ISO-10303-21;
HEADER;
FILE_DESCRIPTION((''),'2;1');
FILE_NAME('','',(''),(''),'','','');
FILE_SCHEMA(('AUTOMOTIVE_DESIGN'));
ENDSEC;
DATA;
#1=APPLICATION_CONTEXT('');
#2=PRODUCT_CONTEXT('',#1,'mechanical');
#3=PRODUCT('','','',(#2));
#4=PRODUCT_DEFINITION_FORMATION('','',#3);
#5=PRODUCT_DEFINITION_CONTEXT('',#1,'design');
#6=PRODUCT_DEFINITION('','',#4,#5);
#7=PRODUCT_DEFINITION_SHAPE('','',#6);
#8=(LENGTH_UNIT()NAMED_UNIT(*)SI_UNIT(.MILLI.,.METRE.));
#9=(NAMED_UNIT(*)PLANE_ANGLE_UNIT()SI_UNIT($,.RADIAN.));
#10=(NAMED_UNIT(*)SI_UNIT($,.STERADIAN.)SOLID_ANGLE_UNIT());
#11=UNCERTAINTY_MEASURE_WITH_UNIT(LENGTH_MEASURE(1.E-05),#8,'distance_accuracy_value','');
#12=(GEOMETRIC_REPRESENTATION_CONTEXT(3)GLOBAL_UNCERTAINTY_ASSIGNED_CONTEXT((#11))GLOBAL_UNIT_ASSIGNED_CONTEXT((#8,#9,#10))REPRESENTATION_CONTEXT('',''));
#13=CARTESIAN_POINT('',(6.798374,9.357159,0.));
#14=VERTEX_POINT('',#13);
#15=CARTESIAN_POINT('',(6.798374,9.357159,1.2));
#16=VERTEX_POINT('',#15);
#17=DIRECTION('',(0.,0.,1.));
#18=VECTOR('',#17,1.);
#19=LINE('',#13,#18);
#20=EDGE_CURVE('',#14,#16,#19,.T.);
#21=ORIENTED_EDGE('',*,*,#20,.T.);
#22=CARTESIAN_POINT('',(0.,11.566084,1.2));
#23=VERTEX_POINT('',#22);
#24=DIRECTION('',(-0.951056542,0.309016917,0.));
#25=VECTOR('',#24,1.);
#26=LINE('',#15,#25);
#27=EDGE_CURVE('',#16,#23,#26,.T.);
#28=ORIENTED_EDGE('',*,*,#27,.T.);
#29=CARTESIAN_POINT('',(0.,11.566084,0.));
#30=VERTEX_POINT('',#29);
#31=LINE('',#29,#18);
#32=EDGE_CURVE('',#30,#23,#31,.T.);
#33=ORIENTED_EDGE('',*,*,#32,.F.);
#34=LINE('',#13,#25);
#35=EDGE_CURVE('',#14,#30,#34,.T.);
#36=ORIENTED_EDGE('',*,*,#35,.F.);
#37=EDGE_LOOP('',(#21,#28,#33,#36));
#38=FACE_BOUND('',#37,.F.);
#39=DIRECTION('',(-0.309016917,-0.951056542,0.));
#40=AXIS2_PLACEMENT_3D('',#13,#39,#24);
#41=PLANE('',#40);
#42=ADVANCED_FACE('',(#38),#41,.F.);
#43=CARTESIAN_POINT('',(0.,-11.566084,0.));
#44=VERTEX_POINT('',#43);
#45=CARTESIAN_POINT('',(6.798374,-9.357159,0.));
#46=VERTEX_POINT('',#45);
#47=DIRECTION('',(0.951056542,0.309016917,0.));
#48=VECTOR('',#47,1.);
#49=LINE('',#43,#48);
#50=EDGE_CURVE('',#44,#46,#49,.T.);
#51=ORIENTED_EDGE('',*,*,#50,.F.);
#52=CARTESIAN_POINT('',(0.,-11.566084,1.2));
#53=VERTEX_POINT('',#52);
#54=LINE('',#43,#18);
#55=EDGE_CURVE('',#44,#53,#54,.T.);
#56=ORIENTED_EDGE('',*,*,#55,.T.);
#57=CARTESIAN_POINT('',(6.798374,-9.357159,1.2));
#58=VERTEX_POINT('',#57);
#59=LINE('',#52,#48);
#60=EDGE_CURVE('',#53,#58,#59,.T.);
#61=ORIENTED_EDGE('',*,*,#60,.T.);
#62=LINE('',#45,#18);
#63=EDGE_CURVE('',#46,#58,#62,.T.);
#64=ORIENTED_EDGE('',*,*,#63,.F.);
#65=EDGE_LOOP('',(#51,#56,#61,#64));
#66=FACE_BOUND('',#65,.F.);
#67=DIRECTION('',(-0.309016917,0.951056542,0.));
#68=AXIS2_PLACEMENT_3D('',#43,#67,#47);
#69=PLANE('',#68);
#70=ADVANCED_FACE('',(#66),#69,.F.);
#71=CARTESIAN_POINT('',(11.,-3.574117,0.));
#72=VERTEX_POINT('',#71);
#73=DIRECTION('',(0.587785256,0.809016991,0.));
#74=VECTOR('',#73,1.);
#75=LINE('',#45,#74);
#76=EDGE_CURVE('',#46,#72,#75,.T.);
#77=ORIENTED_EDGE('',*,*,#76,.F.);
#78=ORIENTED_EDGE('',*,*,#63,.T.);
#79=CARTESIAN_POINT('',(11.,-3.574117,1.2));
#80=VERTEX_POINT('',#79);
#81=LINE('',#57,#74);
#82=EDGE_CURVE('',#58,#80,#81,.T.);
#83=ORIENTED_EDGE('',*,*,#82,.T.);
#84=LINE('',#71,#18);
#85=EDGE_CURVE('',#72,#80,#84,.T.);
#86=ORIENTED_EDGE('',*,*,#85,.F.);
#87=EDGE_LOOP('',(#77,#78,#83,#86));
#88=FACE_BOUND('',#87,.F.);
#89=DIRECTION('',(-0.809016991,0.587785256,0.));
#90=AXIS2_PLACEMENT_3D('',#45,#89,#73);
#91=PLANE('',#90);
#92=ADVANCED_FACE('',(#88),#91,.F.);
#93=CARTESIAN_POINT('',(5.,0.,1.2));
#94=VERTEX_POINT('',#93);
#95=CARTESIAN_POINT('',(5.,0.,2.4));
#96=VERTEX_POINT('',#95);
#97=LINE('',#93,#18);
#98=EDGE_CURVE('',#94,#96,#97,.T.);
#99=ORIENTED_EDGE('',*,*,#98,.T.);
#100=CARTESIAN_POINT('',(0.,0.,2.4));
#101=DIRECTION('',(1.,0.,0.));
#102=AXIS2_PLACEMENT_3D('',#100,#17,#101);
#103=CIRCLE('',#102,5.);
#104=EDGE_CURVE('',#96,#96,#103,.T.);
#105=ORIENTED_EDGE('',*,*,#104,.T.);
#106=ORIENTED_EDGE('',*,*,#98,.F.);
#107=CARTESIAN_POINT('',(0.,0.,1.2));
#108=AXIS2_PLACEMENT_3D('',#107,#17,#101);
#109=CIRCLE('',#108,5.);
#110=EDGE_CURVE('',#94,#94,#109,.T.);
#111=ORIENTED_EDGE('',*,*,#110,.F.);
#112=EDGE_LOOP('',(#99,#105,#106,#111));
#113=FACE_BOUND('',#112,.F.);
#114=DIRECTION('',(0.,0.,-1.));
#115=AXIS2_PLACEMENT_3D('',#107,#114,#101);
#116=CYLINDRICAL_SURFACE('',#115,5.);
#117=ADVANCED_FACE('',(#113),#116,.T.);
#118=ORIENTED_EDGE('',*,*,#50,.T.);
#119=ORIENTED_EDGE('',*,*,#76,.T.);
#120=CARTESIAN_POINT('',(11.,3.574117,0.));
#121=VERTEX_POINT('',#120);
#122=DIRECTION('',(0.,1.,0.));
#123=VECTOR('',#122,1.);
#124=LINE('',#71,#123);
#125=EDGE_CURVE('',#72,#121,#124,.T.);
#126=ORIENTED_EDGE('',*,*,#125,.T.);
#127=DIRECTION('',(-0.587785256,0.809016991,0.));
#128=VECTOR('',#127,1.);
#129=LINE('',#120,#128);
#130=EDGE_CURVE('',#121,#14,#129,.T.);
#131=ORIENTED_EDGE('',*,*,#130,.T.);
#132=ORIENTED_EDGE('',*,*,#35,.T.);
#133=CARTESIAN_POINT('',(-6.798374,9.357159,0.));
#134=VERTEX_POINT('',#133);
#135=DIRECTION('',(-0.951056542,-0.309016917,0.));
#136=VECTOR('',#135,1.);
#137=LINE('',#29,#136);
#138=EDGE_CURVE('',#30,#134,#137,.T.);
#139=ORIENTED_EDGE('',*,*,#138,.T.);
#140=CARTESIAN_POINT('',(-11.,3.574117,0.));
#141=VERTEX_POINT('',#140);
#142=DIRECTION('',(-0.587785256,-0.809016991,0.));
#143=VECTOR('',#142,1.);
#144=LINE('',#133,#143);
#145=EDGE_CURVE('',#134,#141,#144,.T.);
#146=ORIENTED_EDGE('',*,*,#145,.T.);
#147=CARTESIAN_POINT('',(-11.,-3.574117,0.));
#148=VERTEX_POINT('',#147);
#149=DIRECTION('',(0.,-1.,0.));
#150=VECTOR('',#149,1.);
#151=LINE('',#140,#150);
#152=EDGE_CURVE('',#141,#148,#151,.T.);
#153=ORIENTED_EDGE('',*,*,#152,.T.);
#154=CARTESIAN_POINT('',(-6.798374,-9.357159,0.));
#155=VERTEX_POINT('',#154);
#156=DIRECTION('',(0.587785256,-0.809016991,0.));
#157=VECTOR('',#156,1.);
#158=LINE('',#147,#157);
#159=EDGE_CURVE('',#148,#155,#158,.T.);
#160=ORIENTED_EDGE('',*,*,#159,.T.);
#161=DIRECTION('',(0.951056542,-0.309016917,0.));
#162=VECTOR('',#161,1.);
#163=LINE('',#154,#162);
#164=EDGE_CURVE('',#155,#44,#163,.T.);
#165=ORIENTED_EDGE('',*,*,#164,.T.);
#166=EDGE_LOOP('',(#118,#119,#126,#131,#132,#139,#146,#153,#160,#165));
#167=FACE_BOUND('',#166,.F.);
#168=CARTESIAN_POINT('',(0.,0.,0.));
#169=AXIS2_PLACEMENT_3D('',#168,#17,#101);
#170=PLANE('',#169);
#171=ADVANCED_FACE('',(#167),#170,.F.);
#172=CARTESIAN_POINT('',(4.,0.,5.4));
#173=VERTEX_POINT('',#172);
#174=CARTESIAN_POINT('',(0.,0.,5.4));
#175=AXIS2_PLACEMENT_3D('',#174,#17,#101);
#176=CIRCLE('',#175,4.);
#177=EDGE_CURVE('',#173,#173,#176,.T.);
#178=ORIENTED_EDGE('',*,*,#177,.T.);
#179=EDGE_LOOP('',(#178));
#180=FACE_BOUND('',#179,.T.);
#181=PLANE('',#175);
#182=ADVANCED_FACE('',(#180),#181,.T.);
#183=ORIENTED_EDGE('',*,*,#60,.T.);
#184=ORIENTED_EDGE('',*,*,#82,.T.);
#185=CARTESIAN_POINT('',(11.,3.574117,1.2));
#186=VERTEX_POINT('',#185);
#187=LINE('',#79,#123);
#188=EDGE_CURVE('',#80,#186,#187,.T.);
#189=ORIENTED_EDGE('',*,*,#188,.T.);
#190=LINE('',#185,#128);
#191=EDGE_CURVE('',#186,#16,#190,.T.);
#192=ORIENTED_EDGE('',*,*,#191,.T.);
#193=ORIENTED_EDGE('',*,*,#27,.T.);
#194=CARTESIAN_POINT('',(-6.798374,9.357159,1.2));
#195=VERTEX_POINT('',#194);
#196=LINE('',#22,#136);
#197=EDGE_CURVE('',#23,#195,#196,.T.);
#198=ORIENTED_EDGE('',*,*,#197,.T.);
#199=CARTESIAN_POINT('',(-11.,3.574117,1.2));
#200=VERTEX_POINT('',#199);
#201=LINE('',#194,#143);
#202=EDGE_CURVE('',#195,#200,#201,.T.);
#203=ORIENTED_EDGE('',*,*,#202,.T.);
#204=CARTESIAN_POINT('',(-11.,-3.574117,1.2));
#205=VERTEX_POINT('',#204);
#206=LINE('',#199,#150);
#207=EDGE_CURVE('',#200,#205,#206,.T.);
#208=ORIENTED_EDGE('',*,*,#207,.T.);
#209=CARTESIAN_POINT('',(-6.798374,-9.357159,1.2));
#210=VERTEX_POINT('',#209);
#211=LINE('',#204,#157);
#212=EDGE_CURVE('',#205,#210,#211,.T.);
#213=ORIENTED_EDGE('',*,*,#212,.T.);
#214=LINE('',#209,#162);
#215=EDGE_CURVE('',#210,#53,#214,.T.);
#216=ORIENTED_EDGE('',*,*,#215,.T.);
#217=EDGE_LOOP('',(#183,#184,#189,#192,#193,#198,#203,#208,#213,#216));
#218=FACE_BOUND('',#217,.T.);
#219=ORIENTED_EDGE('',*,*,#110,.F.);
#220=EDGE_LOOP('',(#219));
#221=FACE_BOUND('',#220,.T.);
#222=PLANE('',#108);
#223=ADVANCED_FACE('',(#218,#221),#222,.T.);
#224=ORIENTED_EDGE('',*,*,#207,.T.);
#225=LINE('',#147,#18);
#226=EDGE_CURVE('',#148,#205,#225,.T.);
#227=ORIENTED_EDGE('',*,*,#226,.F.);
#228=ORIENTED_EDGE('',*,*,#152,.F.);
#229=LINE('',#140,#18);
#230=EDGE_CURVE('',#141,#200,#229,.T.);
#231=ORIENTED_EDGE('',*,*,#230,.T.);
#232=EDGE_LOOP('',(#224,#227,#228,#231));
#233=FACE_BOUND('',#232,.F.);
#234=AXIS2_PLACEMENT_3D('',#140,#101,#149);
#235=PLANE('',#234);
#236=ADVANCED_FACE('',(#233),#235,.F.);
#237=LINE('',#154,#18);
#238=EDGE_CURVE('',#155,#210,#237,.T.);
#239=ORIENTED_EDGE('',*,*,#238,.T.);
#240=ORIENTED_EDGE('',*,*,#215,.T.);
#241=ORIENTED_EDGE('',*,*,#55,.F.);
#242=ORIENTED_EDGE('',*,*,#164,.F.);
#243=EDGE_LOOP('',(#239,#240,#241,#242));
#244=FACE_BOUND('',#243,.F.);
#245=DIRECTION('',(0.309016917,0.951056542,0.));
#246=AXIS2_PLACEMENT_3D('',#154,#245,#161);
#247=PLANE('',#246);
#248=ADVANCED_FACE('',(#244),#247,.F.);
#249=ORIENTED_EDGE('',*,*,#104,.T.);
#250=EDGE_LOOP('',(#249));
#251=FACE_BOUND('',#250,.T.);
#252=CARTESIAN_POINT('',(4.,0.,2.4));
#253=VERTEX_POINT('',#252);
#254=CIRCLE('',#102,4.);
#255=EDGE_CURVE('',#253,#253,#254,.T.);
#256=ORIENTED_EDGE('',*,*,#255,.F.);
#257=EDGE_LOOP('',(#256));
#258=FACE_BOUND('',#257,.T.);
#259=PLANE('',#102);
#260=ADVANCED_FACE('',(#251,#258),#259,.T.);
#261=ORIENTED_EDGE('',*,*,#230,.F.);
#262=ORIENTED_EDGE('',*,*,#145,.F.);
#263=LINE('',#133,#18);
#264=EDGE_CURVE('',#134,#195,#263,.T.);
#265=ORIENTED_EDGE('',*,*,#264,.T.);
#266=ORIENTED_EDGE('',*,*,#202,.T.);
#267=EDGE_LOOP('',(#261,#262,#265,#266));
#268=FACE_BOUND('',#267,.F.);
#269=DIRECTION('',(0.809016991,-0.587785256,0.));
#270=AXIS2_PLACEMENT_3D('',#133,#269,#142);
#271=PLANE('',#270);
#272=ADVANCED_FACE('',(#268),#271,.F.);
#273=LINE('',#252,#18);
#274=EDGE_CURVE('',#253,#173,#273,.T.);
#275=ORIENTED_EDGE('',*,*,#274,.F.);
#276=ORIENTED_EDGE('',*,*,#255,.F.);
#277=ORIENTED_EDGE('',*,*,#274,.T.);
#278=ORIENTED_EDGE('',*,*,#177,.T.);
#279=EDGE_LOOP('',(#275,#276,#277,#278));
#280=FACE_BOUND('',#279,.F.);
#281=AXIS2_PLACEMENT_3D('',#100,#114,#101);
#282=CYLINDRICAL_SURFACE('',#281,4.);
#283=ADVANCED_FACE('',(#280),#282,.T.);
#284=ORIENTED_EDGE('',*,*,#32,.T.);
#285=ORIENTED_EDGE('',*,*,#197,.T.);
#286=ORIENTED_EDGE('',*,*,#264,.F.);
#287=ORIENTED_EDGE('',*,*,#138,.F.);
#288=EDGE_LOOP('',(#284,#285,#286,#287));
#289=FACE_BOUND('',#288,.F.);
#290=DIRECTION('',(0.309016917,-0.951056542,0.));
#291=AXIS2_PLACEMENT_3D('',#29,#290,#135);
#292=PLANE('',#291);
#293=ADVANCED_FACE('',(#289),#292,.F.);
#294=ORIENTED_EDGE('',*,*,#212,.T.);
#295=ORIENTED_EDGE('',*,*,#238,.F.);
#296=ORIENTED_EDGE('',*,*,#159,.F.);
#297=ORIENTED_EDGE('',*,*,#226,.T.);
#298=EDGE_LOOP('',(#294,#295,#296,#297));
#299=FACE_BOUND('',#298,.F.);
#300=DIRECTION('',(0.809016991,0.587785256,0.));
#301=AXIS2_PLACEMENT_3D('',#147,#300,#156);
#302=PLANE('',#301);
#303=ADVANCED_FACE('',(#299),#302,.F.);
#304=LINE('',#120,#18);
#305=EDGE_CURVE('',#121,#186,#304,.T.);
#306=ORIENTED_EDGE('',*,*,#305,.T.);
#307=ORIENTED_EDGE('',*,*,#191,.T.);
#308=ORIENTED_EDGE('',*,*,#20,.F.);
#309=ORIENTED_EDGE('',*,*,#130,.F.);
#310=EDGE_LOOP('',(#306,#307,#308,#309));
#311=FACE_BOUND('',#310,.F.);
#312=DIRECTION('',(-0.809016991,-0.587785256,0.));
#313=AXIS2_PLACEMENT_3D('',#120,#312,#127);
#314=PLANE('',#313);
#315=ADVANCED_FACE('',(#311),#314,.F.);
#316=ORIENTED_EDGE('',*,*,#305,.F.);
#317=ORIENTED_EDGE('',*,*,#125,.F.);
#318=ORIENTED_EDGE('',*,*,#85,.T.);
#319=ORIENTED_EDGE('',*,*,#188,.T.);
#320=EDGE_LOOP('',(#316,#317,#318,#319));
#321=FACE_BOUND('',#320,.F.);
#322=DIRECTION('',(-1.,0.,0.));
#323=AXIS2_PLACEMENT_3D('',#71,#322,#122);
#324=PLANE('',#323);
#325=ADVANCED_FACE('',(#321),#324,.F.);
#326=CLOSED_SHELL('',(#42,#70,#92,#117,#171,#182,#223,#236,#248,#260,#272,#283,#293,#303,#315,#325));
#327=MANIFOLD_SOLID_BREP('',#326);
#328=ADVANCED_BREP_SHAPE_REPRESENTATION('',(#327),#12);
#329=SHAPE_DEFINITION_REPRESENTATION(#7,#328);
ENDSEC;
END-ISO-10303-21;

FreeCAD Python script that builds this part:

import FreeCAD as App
import Part
import Sketcher

V = App.Vector
Q = App.Units.Quantity

doc = App.newDocument("Part")
body = doc.addObject("PartDesign::Body", "Body")

# Sketch on XY plane
sketch1 = body.newObject("Sketcher::SketchObject", "Sketch")
sketch1.AttachmentSupport = (doc.getObject("XY_Plane"), [""])
sketch1.MapMode = "FlatFace"
sketch1.addGeometry([
    Part.LineSegment(V(-11, 4, 0), V(-11, -4, 0)),  # 0
    Part.LineSegment(V(-11, -4, 0), V(-7, -9, 0)),  # 1
    Part.LineSegment(V(-7, -9, 0), V(0, -12, 0)),  # 2
    Part.LineSegment(V(0, -12, 0), V(7, -9, 0)),  # 3
    Part.LineSegment(V(7, -9, 0), V(11, -4, 0)),  # 4
    Part.LineSegment(V(11, -4, 0), V(11, 4, 0)),  # 5
    Part.LineSegment(V(11, 4, 0), V(7, 9, 0)),  # 6
    Part.LineSegment(V(7, 9, 0), V(0, 12, 0)),  # 7
    Part.LineSegment(V(0, 12, 0), V(-7, 9, 0)),  # 8
    Part.LineSegment(V(-7, 9, 0), V(-11, 4, 0)),  # 9
], False)
sketch1.addConstraint([
    Sketcher.Constraint("Coincident", 0, 2, 1, 1),
    Sketcher.Constraint("Coincident", 1, 2, 2, 1),
    Sketcher.Constraint("Coincident", 2, 2, 3, 1),
    Sketcher.Constraint("Coincident", 3, 2, 4, 1),
    Sketcher.Constraint("Coincident", 4, 2, 5, 1),
    Sketcher.Constraint("Coincident", 5, 2, 6, 1),
    Sketcher.Constraint("Coincident", 6, 2, 7, 1),
    Sketcher.Constraint("Coincident", 7, 2, 8, 1),
    Sketcher.Constraint("Coincident", 8, 2, 9, 1),
    Sketcher.Constraint("Coincident", 9, 2, 0, 1),
    Sketcher.Constraint("Vertical", 0),
    Sketcher.Constraint("Vertical", 5),
    Sketcher.Constraint("Symmetric", 0, 2, 5, 2, -1, 1),
    Sketcher.Constraint("Symmetric", 1, 2, 6, 2, -1, 1),
    Sketcher.Constraint("Symmetric", 2, 2, 7, 2, -1, 1),
    Sketcher.Constraint("Symmetric", 3, 2, 8, 2, -1, 1),
    Sketcher.Constraint("Symmetric", 1, 2, 3, 2, -2),
    Sketcher.Constraint("PointOnObject", 2, 2, -2),
    Sketcher.Constraint("Parallel", 4, 9),
    Sketcher.Constraint("Horizontal", 0, 2, 4, 2),
    Sketcher.Constraint("Equal", 1, 2),
    Sketcher.Constraint("Angle", 1, Q("-54 deg")),
    Sketcher.Constraint("Angle", 2, Q("-17.999995 deg")),
    Sketcher.Constraint("DistanceX", 0, 2, -1, 1, 11.0),
    Sketcher.Constraint("DistanceY", 2, 2, 5, 2, 15.140201),
])
pad1 = body.newObject("PartDesign::Pad", "Pad")
pad1.Profile = sketch1
pad1.Length = 1.2

# Sketch on XY plane
sketch2 = body.newObject("Sketcher::SketchObject", "Sketch001")
sketch2.AttachmentSupport = (doc.getObject("XY_Plane"), [""])
sketch2.MapMode = "FlatFace"
sketch2.AttachmentOffset = App.Placement(V(0, 0, 1.2), App.Rotation())
sketch2.addGeometry(Part.Circle(V(0, 0, 0), V(0, 0, 1), 5), False)
sketch2.addConstraint([
    Sketcher.Constraint("Coincident", 0, 3, -1, 1),
    Sketcher.Constraint("Diameter", 0, 10.0),
])
pad2 = body.newObject("PartDesign::Pad", "Pad001")
pad2.Profile = sketch2
pad2.Length = 1.2

# Sketch on XY plane
sketch3 = body.newObject("Sketcher::SketchObject", "Sketch002")
sketch3.AttachmentSupport = (doc.getObject("XY_Plane"), [""])
sketch3.MapMode = "FlatFace"
sketch3.AttachmentOffset = App.Placement(V(0, 0, 2.4), App.Rotation())
sketch3.addGeometry(Part.Circle(V(0, 0, 0), V(0, 0, 1), 4), False)
sketch3.addConstraint([
    Sketcher.Constraint("Coincident", 0, 3, -1, 1),
    Sketcher.Constraint("Diameter", 0, 8.0),
])
pad3 = body.newObject("PartDesign::Pad", "Pad002")
pad3.Profile = sketch3
pad3.Length = 3

doc.recompute()
